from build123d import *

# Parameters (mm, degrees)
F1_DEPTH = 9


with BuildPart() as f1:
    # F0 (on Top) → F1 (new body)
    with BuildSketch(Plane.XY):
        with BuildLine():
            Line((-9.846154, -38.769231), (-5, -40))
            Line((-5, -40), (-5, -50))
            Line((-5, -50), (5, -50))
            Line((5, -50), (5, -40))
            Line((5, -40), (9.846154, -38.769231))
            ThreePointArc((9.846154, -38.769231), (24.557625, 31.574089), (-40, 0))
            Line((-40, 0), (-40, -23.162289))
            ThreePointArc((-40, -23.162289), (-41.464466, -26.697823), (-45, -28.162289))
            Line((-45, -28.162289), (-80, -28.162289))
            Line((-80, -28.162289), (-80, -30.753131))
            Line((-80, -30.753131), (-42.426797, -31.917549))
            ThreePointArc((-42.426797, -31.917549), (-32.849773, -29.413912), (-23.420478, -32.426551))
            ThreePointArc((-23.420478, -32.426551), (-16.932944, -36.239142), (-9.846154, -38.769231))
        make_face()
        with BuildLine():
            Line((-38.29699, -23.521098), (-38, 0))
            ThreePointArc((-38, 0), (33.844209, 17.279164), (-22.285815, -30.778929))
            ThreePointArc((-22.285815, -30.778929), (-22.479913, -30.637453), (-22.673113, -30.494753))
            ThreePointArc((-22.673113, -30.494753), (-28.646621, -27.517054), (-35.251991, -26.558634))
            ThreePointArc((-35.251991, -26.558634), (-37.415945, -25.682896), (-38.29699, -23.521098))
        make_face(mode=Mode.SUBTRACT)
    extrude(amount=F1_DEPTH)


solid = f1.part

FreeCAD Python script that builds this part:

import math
import FreeCAD as App
import Part
import Sketcher
Q = App.Units.Quantity

doc = App.newDocument("Part")
body = doc.addObject("PartDesign::Body", "Body")

# Sketch on XY plane
sketch1 = body.newObject("Sketcher::SketchObject", "Sketch")
sketch1.AttachmentSupport = (doc.getObject("XY_Plane"), [""])
sketch1.MapMode = "FlatFace"
sketch1.addGeometry([
    Part.LineSegment(App.Vector(-9.846154, -38.769231, 0), App.Vector(-5, -40, 0)),  # 0
    Part.LineSegment(App.Vector(-5, -40, 0), App.Vector(-5, -50, 0)),  # 1
    Part.LineSegment(App.Vector(-5, -50, 0), App.Vector(5, -50, 0)),  # 2
    Part.LineSegment(App.Vector(5, -50, 0), App.Vector(5, -40, 0)),  # 3
    Part.LineSegment(App.Vector(5, -40, 0), App.Vector(9.846154, -38.769231, 0)),  # 4
    Part.ArcOfCircle(Part.Circle(App.Vector(0, 0, 0), App.Vector(0, 0, 1), 40), math.radians(-75.749968), math.radians(180)),  # 5
    Part.LineSegment(App.Vector(-40, 0, 0), App.Vector(-40, -23.162289, 0)),  # 6
    Part.ArcOfCircle(Part.Circle(App.Vector(-45, -23.162289, 0), App.Vector(0, 0, 1), 5), math.radians(-90.000004), math.radians(0.000004)),  # 7
    Part.LineSegment(App.Vector(-45, -28.162289, 0), App.Vector(-80, -28.162289, 0)),  # 8
    Part.LineSegment(App.Vector(-80, -28.162289, 0), App.Vector(-80, -30.753131, 0)),  # 9
    Part.LineSegment(App.Vector(-80, -30.753131, 0), App.Vector(-42.426797, -31.917549, 0)),  # 10
    Part.ArcOfCircle(Part.Circle(App.Vector(-33.325146, -47.164541, 0), App.Vector(0, 0, 1), 17.756993), math.radians(56.096919), math.radians(120.834976)),  # 11
    Part.ArcOfCircle(Part.Circle(App.Vector(0.000002, 0.000003, 0), App.Vector(0, 0, 1), 40.000003), math.radians(-125.839165), math.radians(-104.250035)),  # 12
    Part.ArcOfCircle(Part.Circle(App.Vector(-35.297228, -23.558974, 0), App.Vector(0, 0, 1), 3.000001), math.radians(179.276604), math.radians(270.863994)),  # 13
    Part.LineSegment(App.Vector(-38.29699, -23.521098, 0), App.Vector(-38, 0, 0)),  # 14
    Part.ArcOfCircle(Part.Circle(App.Vector(0, 0, 0), App.Vector(0, 0, 1), 38), math.radians(-125.906823), math.radians(180)),  # 15
    Part.ArcOfCircle(Part.Circle(App.Vector(0.000905, 0.001221, 0), App.Vector(0, 0, 1), 38.00152), math.radians(-126.631119), math.radians(-125.906848)),  # 16
    Part.ArcOfCircle(Part.Circle(App.Vector(-34.934493, -47.611562, 0), App.Vector(0, 0, 1), 21.055322), math.radians(54.384627), math.radians(90.86401)),  # 17
], False)
sketch1.addConstraint([
    Sketcher.Constraint("Coincident", 0, 2, 1, 1),
    Sketcher.Constraint("Coincident", 1, 2, 2, 1),
    Sketcher.Constraint("Coincident", 2, 2, 3, 1),
    Sketcher.Constraint("Coincident", 3, 2, 4, 1),
    Sketcher.Constraint("Coincident", 4, 2, 5, 1),
    Sketcher.Constraint("Coincident", 5, 2, 6, 1),
    Sketcher.Constraint("Coincident", 6, 2, 7, 2),
    Sketcher.Constraint("Coincident", 7, 1, 8, 1),
    Sketcher.Constraint("Coincident", 8, 2, 9, 1),
    Sketcher.Constraint("Coincident", 9, 2, 10, 1),
    Sketcher.Constraint("Coincident", 10, 2, 11, 2),
    Sketcher.Constraint("Coincident", 11, 1, 12, 1),
    Sketcher.Constraint("Coincident", 12, 2, 0, 1),
    Sketcher.Constraint("Coincident", 13, 1, 14, 1),
    Sketcher.Constraint("Coincident", 14, 2, 15, 2),
    Sketcher.Constraint("Coincident", 15, 1, 16, 2),
    Sketcher.Constraint("Coincident", 16, 1, 17, 1),
    Sketcher.Constraint("Coincident", 17, 2, 13, 2),
    Sketcher.Constraint("Vertical", 1),
    Sketcher.Constraint("Horizontal", 2),
    Sketcher.Constraint("Vertical", 3),
    Sketcher.Constraint("Vertical", 6),
    Sketcher.Constraint("Horizontal", 8),
    Sketcher.Constraint("Vertical", 9),
    Sketcher.Constraint("Coincident", 5, 3, -1, 1),
    Sketcher.Constraint("Coincident", 12, 3, -1, 1),
    Sketcher.Constraint("Coincident", 15, 3, -1, 1),
    Sketcher.Constraint("PointOnObject", 5, 2, -1),
    Sketcher.Constraint("PointOnObject", 14, 2, -1),
    Sketcher.Constraint("Radius", 5, Q("40 mm")),
    Sketcher.Constraint("Radius", 7, Q("5 mm")),
    Sketcher.Constraint("Radius", 13, Q("3.000001 mm")),
    Sketcher.Constraint("Radius", 15, Q("38 mm")),
    Sketcher.Constraint("DistanceX", 2, 1, 2, 2, Q("10 mm")),
    Sketcher.Constraint("DistanceX", 8, 2, 8, 1, Q("35 mm")),
    Sketcher.Constraint("DistanceY", 1, 2, 1, 1, Q("10 mm")),
    Sketcher.Constraint("DistanceY", 3, 1, 3, 2, Q("10 mm")),
    Sketcher.Constraint("Distance", 0, Q("5 mm")),
    Sketcher.Constraint("Distance", 4, Q("5 mm")),
    Sketcher.Constraint("DistanceX", 0, 2, -1, 1, Q("5 mm")),
    Sketcher.Constraint("DistanceY", 0, 2, -1, 1, Q("40 mm")),
    Sketcher.Constraint("DistanceX", 7, 1, -1, 1, Q("45 mm")),
    Sketcher.Constraint("DistanceY", 7, 1, 6, 2, Q("5 mm")),
    Sketcher.Constraint("Radius", 16, Q("38.00152 mm")),
    Sketcher.Constraint("Radius", 11, Q("17.756993 mm")),
    Sketcher.Constraint("Radius", 12, Q("40.000003 mm")),
    Sketcher.Constraint("Radius", 17, Q("21.055322 mm")),
    Sketcher.Constraint("DistanceY", 11, 1, 10, 2, Q("0.509002 mm")),
    Sketcher.Constraint("DistanceX", 13, 1, 17, 2, Q("3.044999 mm")),
    Sketcher.Constraint("DistanceY", 6, 2, 6, 1, Q("23.162289 mm")),
    Sketcher.Constraint("DistanceY", 9, 2, 9, 1, Q("2.590842 mm")),
    Sketcher.Constraint("DistanceY", 13, 1, -1, 1, Q("23.521098 mm")),
    Sketcher.Constraint("DistanceX", 16, 1, 15, 1, Q("0.387298 mm")),
    Sketcher.Constraint("Distance", 10, Q("37.591242 mm")),
    Sketcher.Constraint("DistanceY", 11, 3, -1, 1, Q("47.164541 mm")),
    Sketcher.Constraint("DistanceY", -1, 1, 16, 3, Q("0.001221 mm")),
    Sketcher.Constraint("DistanceX", 13, 1, -1, 1, Q("38.29699 mm")),
    Sketcher.Constraint("DistanceY", 15, 1, -1, 1, Q("30.778929 mm")),
    Sketcher.Constraint("DistanceX", 7, 3, 13, 3, Q("9.702772 mm")),
])
pad1 = body.newObject("PartDesign::Pad", "Pad")
pad1.Profile = sketch1
pad1.Length = 9

doc.recompute()
